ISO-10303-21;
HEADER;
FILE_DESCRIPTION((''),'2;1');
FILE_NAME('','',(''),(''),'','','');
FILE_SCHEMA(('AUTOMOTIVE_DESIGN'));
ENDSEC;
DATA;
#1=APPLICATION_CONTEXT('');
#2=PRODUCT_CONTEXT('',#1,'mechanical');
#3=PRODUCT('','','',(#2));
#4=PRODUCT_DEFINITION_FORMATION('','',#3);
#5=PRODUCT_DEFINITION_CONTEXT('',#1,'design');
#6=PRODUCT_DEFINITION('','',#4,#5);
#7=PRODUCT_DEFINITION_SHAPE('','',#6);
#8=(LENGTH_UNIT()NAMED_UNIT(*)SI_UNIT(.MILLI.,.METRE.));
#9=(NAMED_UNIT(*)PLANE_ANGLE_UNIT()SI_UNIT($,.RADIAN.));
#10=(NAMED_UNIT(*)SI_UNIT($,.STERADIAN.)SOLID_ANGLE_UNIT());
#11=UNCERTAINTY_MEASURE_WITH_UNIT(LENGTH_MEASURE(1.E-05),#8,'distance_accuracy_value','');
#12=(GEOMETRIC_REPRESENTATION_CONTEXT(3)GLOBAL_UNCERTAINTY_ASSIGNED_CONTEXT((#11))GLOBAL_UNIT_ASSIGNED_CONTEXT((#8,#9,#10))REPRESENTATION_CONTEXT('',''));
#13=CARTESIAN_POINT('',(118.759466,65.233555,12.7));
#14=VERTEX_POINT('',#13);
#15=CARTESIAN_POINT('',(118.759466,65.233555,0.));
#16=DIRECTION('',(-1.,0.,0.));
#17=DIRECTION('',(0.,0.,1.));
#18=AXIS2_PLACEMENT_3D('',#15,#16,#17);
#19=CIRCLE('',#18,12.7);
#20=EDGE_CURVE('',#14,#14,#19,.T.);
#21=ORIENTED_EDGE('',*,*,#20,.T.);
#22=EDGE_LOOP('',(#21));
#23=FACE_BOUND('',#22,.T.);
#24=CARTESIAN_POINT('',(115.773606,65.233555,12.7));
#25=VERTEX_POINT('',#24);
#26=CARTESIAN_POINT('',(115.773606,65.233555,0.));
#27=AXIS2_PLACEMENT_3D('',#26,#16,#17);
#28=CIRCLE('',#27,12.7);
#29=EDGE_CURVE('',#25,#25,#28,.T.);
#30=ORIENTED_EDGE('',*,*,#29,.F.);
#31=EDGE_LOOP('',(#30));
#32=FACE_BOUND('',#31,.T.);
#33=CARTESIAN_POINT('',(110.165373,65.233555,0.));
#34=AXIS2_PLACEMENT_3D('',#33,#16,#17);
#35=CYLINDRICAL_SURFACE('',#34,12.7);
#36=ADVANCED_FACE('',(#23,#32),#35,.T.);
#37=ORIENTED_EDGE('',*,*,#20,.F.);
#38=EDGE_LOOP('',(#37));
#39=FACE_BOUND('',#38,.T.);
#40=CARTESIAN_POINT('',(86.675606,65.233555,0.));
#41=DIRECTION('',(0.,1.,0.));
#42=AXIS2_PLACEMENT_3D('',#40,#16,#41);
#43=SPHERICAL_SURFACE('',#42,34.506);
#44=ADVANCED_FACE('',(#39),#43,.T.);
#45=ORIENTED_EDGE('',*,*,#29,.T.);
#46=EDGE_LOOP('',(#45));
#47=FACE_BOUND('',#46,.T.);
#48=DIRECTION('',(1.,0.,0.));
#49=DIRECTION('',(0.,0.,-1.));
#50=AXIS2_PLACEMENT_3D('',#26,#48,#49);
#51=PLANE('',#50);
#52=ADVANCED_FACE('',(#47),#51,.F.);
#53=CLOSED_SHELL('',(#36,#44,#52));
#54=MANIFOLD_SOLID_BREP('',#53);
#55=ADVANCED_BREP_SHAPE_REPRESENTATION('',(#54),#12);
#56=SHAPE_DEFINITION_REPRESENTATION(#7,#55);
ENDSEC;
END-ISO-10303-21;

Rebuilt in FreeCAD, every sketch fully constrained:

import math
import FreeCAD as App
import Part
import Sketcher
from FreeCAD import Vector
Q = App.Units.Quantity

doc = App.newDocument("Part")
body = doc.addObject("PartDesign::Body", "Body")

sketch1 = body.newObject("Sketcher::SketchObject", "Sketch")
sketch1.AttachmentSupport = (doc.getObject("XY_Plane"), [""])
sketch1.MapMode = "FlatFace"
sketch1.addGeometry([
    Part.LineSegment(Vector(115.773606, 77.933555, 0), Vector(115.773606, 65.233555, 0)),
    Part.LineSegment(Vector(115.773606, 65.233555, 0), Vector(121.181606, 65.233555, 0)),
    Part.ArcOfCircle(Part.Circle(Vector(86.675606, 65.233555, 0), Vector(0, 0, 1), 34.506), math.radians(0), math.radians(21.595525)),
    Part.LineSegment(Vector(118.759466, 77.933555, 0), Vector(115.773606, 77.933555, 0)),
], False)
sketch1.addGeometry(Part.LineSegment(Vector(86.675606, 65.233555, 0), Vector(121.181606, 65.233555, 0)), True)
sketch1.addConstraint([
    Sketcher.Constraint("Coincident", 0, 2, 1, 1),
    Sketcher.Constraint("Coincident", 1, 2, 2, 1),
    Sketcher.Constraint("Coincident", 2, 2, 3, 1),
    Sketcher.Constraint("Coincident", 3, 2, 0, 1),
    Sketcher.Constraint("Vertical", 0),
    Sketcher.Constraint("Horizontal", 1),
    Sketcher.Constraint("Horizontal", 3),
    Sketcher.Constraint("Horizontal", 4),
    Sketcher.Constraint("Coincident", 4, 1, 2, 3),
    Sketcher.Constraint("Coincident", 4, 2, 1, 2),
    Sketcher.Constraint("DistanceY", 0, 2, 0, 1, Q("0.5 in")),
    Sketcher.Constraint("Radius", 2, 34.506),
    Sketcher.Constraint("DistanceX", 1, 1, 1, 2, 5.408),
    Sketcher.Constraint("DistanceX", -1, 1, 2, 3, 86.675606),
    Sketcher.Constraint("DistanceY", -1, 1, 2, 3, 65.233555),
])
revolution = body.newObject("PartDesign::Revolution", "Revolution")
revolution.Profile = sketch1
revolution.ReferenceAxis = (sketch1, ["Axis0"])
revolution.Angle = 360

doc.recompute()
